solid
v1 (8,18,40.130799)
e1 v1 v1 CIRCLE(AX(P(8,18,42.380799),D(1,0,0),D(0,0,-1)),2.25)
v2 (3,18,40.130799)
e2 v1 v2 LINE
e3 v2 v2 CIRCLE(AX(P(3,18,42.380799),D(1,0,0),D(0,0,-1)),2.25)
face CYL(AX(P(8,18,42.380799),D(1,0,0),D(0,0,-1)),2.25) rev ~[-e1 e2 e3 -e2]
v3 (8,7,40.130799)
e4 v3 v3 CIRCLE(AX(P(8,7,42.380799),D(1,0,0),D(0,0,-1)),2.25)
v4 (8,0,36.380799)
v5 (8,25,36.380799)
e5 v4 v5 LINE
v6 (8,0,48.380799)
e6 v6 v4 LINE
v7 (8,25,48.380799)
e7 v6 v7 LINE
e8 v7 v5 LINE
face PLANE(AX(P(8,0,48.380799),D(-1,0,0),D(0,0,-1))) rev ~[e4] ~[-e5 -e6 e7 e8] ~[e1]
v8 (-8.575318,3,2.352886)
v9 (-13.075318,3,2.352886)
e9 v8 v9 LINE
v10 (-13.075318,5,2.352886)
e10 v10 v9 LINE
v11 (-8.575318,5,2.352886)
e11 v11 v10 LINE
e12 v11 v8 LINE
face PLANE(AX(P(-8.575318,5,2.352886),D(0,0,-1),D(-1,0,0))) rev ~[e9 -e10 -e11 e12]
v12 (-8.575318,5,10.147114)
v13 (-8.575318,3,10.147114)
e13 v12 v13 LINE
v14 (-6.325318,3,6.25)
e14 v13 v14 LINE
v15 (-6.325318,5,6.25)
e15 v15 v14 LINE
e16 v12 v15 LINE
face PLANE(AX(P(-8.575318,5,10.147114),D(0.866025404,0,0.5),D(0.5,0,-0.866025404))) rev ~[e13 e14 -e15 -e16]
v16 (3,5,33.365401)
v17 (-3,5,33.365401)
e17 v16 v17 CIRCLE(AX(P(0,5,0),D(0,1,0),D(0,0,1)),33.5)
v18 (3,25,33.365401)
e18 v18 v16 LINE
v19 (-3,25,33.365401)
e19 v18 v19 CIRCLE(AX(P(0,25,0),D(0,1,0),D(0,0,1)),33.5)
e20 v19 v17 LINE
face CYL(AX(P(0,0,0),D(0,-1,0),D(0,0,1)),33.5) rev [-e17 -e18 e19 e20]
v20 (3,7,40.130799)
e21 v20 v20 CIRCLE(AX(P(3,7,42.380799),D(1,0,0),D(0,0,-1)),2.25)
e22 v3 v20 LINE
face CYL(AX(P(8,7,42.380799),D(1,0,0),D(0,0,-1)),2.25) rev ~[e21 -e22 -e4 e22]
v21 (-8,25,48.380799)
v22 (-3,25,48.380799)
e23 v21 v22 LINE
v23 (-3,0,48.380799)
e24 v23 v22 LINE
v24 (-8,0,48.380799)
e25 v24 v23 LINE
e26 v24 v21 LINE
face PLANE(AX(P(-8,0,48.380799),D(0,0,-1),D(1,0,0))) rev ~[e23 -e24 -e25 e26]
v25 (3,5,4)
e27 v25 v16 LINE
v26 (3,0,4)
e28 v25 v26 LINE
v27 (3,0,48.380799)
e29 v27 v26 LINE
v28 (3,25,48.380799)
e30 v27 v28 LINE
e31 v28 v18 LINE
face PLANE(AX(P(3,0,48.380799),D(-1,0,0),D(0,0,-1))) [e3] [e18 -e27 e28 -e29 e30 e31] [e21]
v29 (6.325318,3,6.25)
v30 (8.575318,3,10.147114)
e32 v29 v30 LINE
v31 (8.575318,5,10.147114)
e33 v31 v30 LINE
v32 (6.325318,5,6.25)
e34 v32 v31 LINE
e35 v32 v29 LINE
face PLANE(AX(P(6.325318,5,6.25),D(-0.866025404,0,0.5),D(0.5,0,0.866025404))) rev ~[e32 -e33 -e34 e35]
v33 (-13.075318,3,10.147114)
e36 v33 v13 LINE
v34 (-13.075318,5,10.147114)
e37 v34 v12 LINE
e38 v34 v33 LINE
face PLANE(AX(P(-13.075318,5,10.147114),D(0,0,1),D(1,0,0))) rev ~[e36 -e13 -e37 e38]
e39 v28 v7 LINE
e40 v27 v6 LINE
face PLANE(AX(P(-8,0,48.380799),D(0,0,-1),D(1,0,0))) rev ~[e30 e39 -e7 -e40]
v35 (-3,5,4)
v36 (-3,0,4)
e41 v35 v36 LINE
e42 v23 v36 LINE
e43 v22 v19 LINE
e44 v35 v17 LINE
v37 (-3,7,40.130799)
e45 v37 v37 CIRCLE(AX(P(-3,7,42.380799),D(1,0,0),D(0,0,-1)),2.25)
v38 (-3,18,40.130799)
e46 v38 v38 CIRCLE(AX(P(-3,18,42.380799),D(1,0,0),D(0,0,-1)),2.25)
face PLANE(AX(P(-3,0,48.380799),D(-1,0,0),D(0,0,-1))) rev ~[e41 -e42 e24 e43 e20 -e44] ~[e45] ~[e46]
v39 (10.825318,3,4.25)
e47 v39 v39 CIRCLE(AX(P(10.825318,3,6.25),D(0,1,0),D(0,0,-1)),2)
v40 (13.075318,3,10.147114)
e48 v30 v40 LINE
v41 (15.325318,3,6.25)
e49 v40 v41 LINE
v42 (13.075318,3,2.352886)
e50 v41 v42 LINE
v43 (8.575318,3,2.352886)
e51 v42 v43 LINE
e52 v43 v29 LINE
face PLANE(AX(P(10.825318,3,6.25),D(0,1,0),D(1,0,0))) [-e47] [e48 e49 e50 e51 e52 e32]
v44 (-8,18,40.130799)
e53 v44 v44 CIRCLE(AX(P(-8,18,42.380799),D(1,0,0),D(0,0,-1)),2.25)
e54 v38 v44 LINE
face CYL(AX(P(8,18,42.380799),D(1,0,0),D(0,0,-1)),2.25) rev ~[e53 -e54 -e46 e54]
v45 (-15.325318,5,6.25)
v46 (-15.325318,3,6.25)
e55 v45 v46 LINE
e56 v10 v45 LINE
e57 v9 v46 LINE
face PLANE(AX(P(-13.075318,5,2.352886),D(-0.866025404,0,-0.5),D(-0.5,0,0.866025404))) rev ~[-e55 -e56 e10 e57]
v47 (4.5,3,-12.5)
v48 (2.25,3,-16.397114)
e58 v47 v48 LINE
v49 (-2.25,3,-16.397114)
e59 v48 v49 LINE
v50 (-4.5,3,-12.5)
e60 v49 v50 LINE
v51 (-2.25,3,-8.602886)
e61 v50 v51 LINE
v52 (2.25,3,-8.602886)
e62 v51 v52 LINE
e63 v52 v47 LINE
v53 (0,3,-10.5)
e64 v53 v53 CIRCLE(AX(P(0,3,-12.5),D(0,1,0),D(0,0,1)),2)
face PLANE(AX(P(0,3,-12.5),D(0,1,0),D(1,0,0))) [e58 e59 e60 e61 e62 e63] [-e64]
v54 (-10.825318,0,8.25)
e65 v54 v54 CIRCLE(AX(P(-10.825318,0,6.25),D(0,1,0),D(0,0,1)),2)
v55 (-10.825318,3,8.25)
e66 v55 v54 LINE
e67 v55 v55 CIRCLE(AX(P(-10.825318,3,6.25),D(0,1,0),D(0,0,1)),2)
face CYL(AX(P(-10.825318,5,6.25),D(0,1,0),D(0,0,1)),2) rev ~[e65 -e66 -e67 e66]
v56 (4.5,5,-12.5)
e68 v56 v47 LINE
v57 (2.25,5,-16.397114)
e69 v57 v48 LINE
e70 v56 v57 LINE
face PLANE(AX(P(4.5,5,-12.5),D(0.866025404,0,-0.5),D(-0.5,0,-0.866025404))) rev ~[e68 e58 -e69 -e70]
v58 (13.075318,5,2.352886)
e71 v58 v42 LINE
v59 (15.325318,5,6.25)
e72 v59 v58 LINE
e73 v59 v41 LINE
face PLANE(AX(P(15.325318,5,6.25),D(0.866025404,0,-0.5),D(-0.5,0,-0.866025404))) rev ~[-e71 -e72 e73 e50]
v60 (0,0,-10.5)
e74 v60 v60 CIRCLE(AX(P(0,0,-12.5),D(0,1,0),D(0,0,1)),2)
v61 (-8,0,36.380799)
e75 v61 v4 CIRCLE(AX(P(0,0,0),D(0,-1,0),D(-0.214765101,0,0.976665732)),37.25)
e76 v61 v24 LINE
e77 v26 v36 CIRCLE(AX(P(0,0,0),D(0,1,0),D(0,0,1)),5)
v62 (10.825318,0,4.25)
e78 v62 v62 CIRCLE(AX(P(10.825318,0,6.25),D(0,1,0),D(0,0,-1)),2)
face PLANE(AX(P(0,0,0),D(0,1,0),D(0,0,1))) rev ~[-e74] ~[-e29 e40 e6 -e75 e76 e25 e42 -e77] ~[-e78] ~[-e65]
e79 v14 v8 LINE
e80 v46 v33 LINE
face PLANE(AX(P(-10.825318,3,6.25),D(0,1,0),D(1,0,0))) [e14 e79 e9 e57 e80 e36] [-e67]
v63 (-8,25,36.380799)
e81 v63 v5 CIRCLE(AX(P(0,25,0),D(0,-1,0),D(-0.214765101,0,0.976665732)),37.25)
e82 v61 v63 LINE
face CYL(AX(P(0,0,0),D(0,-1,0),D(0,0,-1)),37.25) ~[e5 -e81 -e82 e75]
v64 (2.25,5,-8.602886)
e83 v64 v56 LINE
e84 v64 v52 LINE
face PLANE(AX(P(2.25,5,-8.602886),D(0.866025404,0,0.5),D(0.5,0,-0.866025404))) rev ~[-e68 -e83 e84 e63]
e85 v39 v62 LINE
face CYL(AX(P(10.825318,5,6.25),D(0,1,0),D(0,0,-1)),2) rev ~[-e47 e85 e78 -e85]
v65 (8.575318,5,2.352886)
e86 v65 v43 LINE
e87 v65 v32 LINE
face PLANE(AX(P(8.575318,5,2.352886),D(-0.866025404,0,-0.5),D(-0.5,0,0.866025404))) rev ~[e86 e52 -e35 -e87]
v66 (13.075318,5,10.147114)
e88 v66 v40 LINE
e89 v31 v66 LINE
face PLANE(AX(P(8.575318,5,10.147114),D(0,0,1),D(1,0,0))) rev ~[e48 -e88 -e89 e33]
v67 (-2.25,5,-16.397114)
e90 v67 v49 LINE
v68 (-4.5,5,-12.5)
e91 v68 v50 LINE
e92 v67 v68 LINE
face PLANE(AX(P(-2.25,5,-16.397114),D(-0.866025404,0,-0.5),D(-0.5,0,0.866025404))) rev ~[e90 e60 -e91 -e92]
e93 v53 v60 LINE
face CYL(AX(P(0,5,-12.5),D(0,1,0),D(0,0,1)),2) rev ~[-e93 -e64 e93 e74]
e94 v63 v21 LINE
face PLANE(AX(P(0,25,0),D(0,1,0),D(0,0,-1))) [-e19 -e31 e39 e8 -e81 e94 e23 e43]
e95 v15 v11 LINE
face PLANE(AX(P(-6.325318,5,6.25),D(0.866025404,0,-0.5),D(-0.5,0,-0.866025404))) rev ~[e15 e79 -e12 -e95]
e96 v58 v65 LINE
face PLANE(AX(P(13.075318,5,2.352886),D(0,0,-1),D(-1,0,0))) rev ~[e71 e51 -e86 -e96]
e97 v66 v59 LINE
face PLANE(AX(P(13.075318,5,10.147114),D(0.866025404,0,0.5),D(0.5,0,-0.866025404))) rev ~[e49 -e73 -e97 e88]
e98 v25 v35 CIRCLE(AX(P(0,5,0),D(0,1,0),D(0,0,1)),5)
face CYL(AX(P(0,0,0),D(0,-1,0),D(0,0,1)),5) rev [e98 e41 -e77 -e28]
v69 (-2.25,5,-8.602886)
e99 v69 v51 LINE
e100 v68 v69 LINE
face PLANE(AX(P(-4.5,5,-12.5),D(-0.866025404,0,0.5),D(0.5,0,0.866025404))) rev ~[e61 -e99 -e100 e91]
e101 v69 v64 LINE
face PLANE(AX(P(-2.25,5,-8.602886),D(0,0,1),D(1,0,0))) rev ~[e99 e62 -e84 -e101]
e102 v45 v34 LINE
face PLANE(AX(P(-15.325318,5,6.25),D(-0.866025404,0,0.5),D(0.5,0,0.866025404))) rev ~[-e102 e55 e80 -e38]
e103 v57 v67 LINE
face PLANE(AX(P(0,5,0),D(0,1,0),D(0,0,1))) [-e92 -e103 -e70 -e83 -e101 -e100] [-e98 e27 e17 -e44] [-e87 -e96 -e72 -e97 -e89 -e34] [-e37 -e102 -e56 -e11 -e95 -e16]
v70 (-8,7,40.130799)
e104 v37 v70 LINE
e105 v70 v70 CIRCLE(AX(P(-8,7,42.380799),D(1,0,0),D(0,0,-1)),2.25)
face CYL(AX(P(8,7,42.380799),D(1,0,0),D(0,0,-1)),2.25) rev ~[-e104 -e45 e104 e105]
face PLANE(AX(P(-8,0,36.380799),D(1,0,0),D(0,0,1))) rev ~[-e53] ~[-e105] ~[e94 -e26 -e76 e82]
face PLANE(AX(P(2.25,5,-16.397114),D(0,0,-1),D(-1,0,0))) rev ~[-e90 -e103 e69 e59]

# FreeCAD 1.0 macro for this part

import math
import FreeCAD as App
import Part
import Sketcher
from FreeCAD import Vector
Q = App.Units.Quantity

doc = App.newDocument("Part")
body = doc.addObject("PartDesign::Body", "Body")

sketch1 = body.newObject("Sketcher::SketchObject", "Sketch")
sketch1.AttachmentSupport = (doc.getObject("XZ_Plane"), [""])
sketch1.MapMode = "FlatFace"
sketch1.addGeometry(Part.Circle(Vector(0, 0, 0), Vector(0, 0, 1), 37.25), False)
sketch1.addGeometry(Part.Circle(Vector(0, 0, 0), Vector(0, 0, 1), 33.5), False)
sketch1.addConstraint(Sketcher.Constraint("Coincident", 0, 3, -1, 1))
sketch1.addConstraint(Sketcher.Constraint("Coincident", 1, 3, -1, 1))
sketch1.addConstraint(Sketcher.Constraint("Diameter", 1, Q("67 mm")))
sketch1.addConstraint(Sketcher.Constraint("Diameter", 0, Q("74.5 mm")))
pad1 = body.newObject("PartDesign::Pad", "Pad")
pad1.Profile = sketch1
pad1.Length = 25
pad1.Reversed = True

sketch2 = body.newObject("Sketcher::SketchObject", "Sketch001")
sketch2.AttachmentSupport = (doc.getObject("XZ_Plane"), [""])
sketch2.MapMode = "FlatFace"
sketch2.addGeometry(Part.Circle(Vector(0, 0, 0), Vector(0, 0, 1), 33.5), False)
sketch2.addGeometry(Part.Circle(Vector(0, 0, 0), Vector(0, 0, 1), 5), False)
sketch2.addConstraint(Sketcher.Constraint("Coincident", 0, 3, -1, 1))
sketch2.addConstraint(Sketcher.Constraint("Coincident", 1, 3, -1, 1))
sketch2.addConstraint(Sketcher.Constraint("Diameter", 0, Q("67 mm")))
sketch2.addConstraint(Sketcher.Constraint("Diameter", 1, Q("10 mm")))
pad2 = body.newObject("PartDesign::Pad", "Pad001")
pad2.Profile = sketch2
pad2.Length = 5
pad2.Reversed = True

sketch3 = body.newObject("Sketcher::SketchObject", "Sketch002")
sketch3.AttachmentSupport = (doc.getObject("XZ_Plane"), [""])
sketch3.MapMode = "FlatFace"
sketch3.addGeometry(Part.LineSegment(Vector(-8, 36.380799, 0), Vector(-8, 48.380799, 0)), False)
sketch3.addGeometry(Part.LineSegment(Vector(-8, 48.380799, 0), Vector(8, 48.380799, 0)), False)
sketch3.addGeometry(Part.LineSegment(Vector(8, 48.380799, 0), Vector(8, 36.380799, 0)), False)
sketch3.addGeometry(Part.ArcOfCircle(Part.Circle(Vector(0, 0, 0), Vector(0, 0, 1), 37.25), math.radians(77.598253), math.radians(102.401747)), False)
sketch3.addConstraint(Sketcher.Constraint("Coincident", 0, 2, 1, 1))
sketch3.addConstraint(Sketcher.Constraint("Coincident", 1, 2, 2, 1))
sketch3.addConstraint(Sketcher.Constraint("Coincident", 2, 2, 3, 1))
sketch3.addConstraint(Sketcher.Constraint("Coincident", 3, 2, 0, 1))
sketch3.addConstraint(Sketcher.Constraint("Vertical", 0))
sketch3.addConstraint(Sketcher.Constraint("Horizontal", 1))
sketch3.addConstraint(Sketcher.Constraint("Vertical", 2))
sketch3.addConstraint(Sketcher.Constraint("Coincident", 3, 3, -1, 1))
sketch3.addConstraint(Sketcher.Constraint("Horizontal", 2, 2, 3, 2))
sketch3.addConstraint(Sketcher.Constraint("DistanceX", 1, 1, 1, 2, Q("16 mm")))
sketch3.addConstraint(Sketcher.Constraint("DistanceY", 0, 1, 0, 2, Q("12 mm")))
sketch3.addConstraint(Sketcher.Constraint("Radius", 3, Q("37.25 mm")))
pad3 = body.newObject("PartDesign::Pad", "Pad002")
pad3.Profile = sketch3
pad3.Length = 25
pad3.Reversed = True

sketch4 = body.newObject("Sketcher::SketchObject", "Sketch003")
sketch4.AttachmentSupport = (doc.getObject("XZ_Plane"), [""])
sketch4.MapMode = "FlatFace"
sketch4.addGeometry(Part.LineSegment(Vector(-3, 0, 0), Vector(-3, 48.380799, 0)), False)
sketch4.addGeometry(Part.LineSegment(Vector(-3, 48.380799, 0), Vector(3, 48.380799, 0)), False)
sketch4.addGeometry(Part.LineSegment(Vector(3, 48.380799, 0), Vector(3, 0, 0)), False)
sketch4.addGeometry(Part.LineSegment(Vector(3, 0, 0), Vector(-3, 0, 0)), False)
sketch4.addConstraint(Sketcher.Constraint("Coincident", 0, 2, 1, 1))
sketch4.addConstraint(Sketcher.Constraint("Coincident", 1, 2, 2, 1))
sketch4.addConstraint(Sketcher.Constraint("Coincident", 2, 2, 3, 1))
sketch4.addConstraint(Sketcher.Constraint("Coincident", 3, 2, 0, 1))
sketch4.addConstraint(Sketcher.Constraint("Vertical", 0))
sketch4.addConstraint(Sketcher.Constraint("Horizontal", 1))
sketch4.addConstraint(Sketcher.Constraint("Vertical", 2))
sketch4.addConstraint(Sketcher.Constraint("Horizontal", 3))
sketch4.addConstraint(Sketcher.Constraint("Symmetric", 2, 2, 3, 2, -1, 1))
sketch4.addConstraint(Sketcher.Constraint("DistanceX", 1, 1, 1, 2, Q("6 mm")))
sketch4.addConstraint(Sketcher.Constraint("DistanceY", 0, 1, 0, 2, Q("48.380799 mm")))
pocket1 = body.newObject("PartDesign::Pocket", "Pocket")
pocket1.Profile = sketch4
pocket1.Length = 25

sketch5 = body.newObject("Sketcher::SketchObject", "Sketch004")
sketch5.AttachmentSupport = (doc.getObject("YZ_Plane"), [""])
sketch5.MapMode = "FlatFace"
sketch5.AttachmentOffset = App.Placement(Vector(0, 0, 8), App.Rotation())
sketch5.addGeometry(Part.Circle(Vector(7, 42.380799, 0), Vector(0, 0, 1), 2.25), False)
sketch5.addGeometry(Part.Circle(Vector(18, 42.380799, 0), Vector(0, 0, 1), 2.25), False)
sketch5.addConstraint(Sketcher.Constraint("Equal", 0, 1))
sketch5.addConstraint(Sketcher.Constraint("Horizontal", 0, 3, 1, 3))
sketch5.addConstraint(Sketcher.Constraint("Diameter", 0, Q("4.5 mm")))
sketch5.addConstraint(Sketcher.Constraint("DistanceX", -1, 1, 0, 3, Q("7 mm")))
sketch5.addConstraint(Sketcher.Constraint("DistanceX", -1, 1, 1, 3, Q("18 mm")))
sketch5.addConstraint(Sketcher.Constraint("DistanceY", -1, 1, 0, 3, Q("42.380799 mm")))
pocket2 = body.newObject("PartDesign::Pocket", "Pocket001")
pocket2.Profile = sketch5
pocket2.Type = "ThroughAll"

sketch6 = body.newObject("Sketcher::SketchObject", "Sketch005")
sketch6.AttachmentSupport = (doc.getObject("XZ_Plane"), [""])
sketch6.MapMode = "FlatFace"
sketch6.AttachmentOffset = App.Placement(Vector(0, 0, -5), App.Rotation())
sketch6.addGeometry(Part.Circle(Vector(0, -12.5, 0), Vector(0, 0, 1), 2), False)
sketch6.addConstraint(Sketcher.Constraint("PointOnObject", 0, 3, -2))
sketch6.addConstraint(Sketcher.Constraint("Diameter", 0, Q("4 mm")))
sketch6.addConstraint(Sketcher.Constraint("DistanceY", 0, 3, -1, 1, Q("12.5 mm")))
pocket3 = body.newObject("PartDesign::Pocket", "Pocket002")
pocket3.Profile = sketch6
pocket3.Type = "UpToFirst"
pocket3.Reversed = True

sketch7 = body.newObject("Sketcher::SketchObject", "Sketch006")
sketch7.AttachmentSupport = (doc.getObject("XZ_Plane"), [""])
sketch7.MapMode = "FlatFace"
sketch7.AttachmentOffset = App.Placement(Vector(0, 0, -5), App.Rotation())
sketch7.addGeometry(Part.Circle(Vector(-10.825318, 6.25, 0), Vector(0, 0, 1), 2), False)
sketch7.addConstraint(Sketcher.Constraint("Diameter", 0, Q("4 mm")))
sketch7.addConstraint(Sketcher.Constraint("DistanceY", -1, 1, 0, 3, Q("6.25 mm")))
sketch7.addConstraint(Sketcher.Constraint("DistanceX", 0, 3, -1, 1, Q("10.825318 mm")))
pocket4 = body.newObject("PartDesign::Pocket", "Pocket003")
pocket4.Profile = sketch7
pocket4.Type = "UpToFirst"
pocket4.Reversed = True

sketch8 = body.newObject("Sketcher::SketchObject", "Sketch007")
sketch8.AttachmentSupport = (doc.getObject("XZ_Plane"), [""])
sketch8.MapMode = "FlatFace"
sketch8.AttachmentOffset = App.Placement(Vector(0, 0, -5), App.Rotation())
sketch8.addGeometry(Part.Circle(Vector(10.825318, 6.25, 0), Vector(0, 0, 1), 2), False)
sketch8.addConstraint(Sketcher.Constraint("Diameter", 0, Q("4 mm")))
sketch8.addConstraint(Sketcher.Constraint("DistanceY", -1, 1, 0, 3, Q("6.25 mm")))
sketch8.addConstraint(Sketcher.Constraint("DistanceX", -1, 1, 0, 3, Q("10.825318 mm")))
pocket5 = body.newObject("PartDesign::Pocket", "Pocket004")
pocket5.Profile = sketch8
pocket5.Type = "UpToFirst"
pocket5.Reversed = True

sketch9 = body.newObject("Sketcher::SketchObject", "Sketch008")
sketch9.AttachmentSupport = (doc.getObject("XZ_Plane"), [""])
sketch9.MapMode = "FlatFace"
sketch9.AttachmentOffset = App.Placement(Vector(0, 0, -5), App.Rotation())
sketch9.addGeometry(Part.LineSegment(Vector(-8.575318, 10.147114, 0), Vector(-6.325318, 6.25, 0)), False)
sketch9.addGeometry(Part.LineSegment(Vector(-6.325318, 6.25, 0), Vector(-8.575318, 2.352886, 0)), False)
sketch9.addGeometry(Part.LineSegment(Vector(-8.575318, 2.352886, 0), Vector(-13.075318, 2.352886, 0)), False)
sketch9.addGeometry(Part.LineSegment(Vector(-13.075318, 2.352886, 0), Vector(-15.325318, 6.25, 0)), False)
sketch9.addGeometry(Part.LineSegment(Vector(-15.325318, 6.25, 0), Vector(-13.075318, 10.147114, 0)), False)
sketch9.addGeometry(Part.LineSegment(Vector(-13.075318, 10.147114, 0), Vector(-8.575318, 10.147114, 0)), False)
sketch9.addGeometry(Part.LineSegment(Vector(13.075318, 10.147114, 0), Vector(15.325318, 6.25, 0)), False)
sketch9.addGeometry(Part.LineSegment(Vector(15.325318, 6.25, 0), Vector(13.075318, 2.352886, 0)), False)
sketch9.addGeometry(Part.LineSegment(Vector(13.075318, 2.352886, 0), Vector(8.575318, 2.352886, 0)), False)
sketch9.addGeometry(Part.LineSegment(Vector(8.575318, 2.352886, 0), Vector(6.325318, 6.25, 0)), False)
sketch9.addGeometry(Part.LineSegment(Vector(6.325318, 6.25, 0), Vector(8.575318, 10.147114, 0)), False)
sketch9.addGeometry(Part.LineSegment(Vector(8.575318, 10.147114, 0), Vector(13.075318, 10.147114, 0)), False)
sketch9.addGeometry(Part.LineSegment(Vector(2.25, -8.602886, 0), Vector(4.5, -12.5, 0)), False)
sketch9.addGeometry(Part.LineSegment(Vector(4.5, -12.5, 0), Vector(2.25, -16.397114, 0)), False)
sketch9.addGeometry(Part.LineSegment(Vector(2.25, -16.397114, 0), Vector(-2.25, -16.397114, 0)), False)
sketch9.addGeometry(Part.LineSegment(Vector(-2.25, -16.397114, 0), Vector(-4.5, -12.5, 0)), False)
sketch9.addGeometry(Part.LineSegment(Vector(-4.5, -12.5, 0), Vector(-2.25, -8.602886, 0)), False)
sketch9.addGeometry(Part.LineSegment(Vector(-2.25, -8.602886, 0), Vector(2.25, -8.602886, 0)), False)
sketch9.addConstraint(Sketcher.Constraint("Coincident", 0, 2, 1, 1))
sketch9.addConstraint(Sketcher.Constraint("Coincident", 1, 2, 2, 1))
sketch9.addConstraint(Sketcher.Constraint("Coincident", 2, 2, 3, 1))
sketch9.addConstraint(Sketcher.Constraint("Coincident", 3, 2, 4, 1))
sketch9.addConstraint(Sketcher.Constraint("Coincident", 4, 2, 5, 1))
sketch9.addConstraint(Sketcher.Constraint("Coincident", 5, 2, 0, 1))
sketch9.addConstraint(Sketcher.Constraint("Coincident", 6, 2, 7, 1))
sketch9.addConstraint(Sketcher.Constraint("Coincident", 7, 2, 8, 1))
sketch9.addConstraint(Sketcher.Constraint("Coincident", 8, 2, 9, 1))
sketch9.addConstraint(Sketcher.Constraint("Coincident", 9, 2, 10, 1))
sketch9.addConstraint(Sketcher.Constraint("Coincident", 10, 2, 11, 1))
sketch9.addConstraint(Sketcher.Constraint("Coincident", 11, 2, 6, 1))
sketch9.addConstraint(Sketcher.Constraint("Coincident", 12, 2, 13, 1))
sketch9.addConstraint(Sketcher.Constraint("Coincident", 13, 2, 14, 1))
sketch9.addConstraint(Sketcher.Constraint("Coincident", 14, 2, 15, 1))
sketch9.addConstraint(Sketcher.Constraint("Coincident", 15, 2, 16, 1))
sketch9.addConstraint(Sketcher.Constraint("Coincident", 16, 2, 17, 1))
sketch9.addConstraint(Sketcher.Constraint("Coincident", 17, 2, 12, 1))
sketch9.addConstraint(Sketcher.Constraint("Horizontal", 2))
sketch9.addConstraint(Sketcher.Constraint("Horizontal", 5))
sketch9.addConstraint(Sketcher.Constraint("Horizontal", 8))
sketch9.addConstraint(Sketcher.Constraint("Horizontal", 11))
sketch9.addConstraint(Sketcher.Constraint("Horizontal", 14))
sketch9.addConstraint(Sketcher.Constraint("Horizontal", 17))
sketch9.addConstraint(Sketcher.Constraint("Symmetric", 3, 2, 6, 2, -2))
sketch9.addConstraint(Sketcher.Constraint("Symmetric", 2, 2, 7, 2, -2))
sketch9.addConstraint(Sketcher.Constraint("Symmetric", 0, 2, 9, 2, -2))
sketch9.addConstraint(Sketcher.Constraint("Symmetric", 5, 2, 10, 2, -2))
sketch9.addConstraint(Sketcher.Constraint("Symmetric", 12, 2, 15, 2, -2))
sketch9.addConstraint(Sketcher.Constraint("Parallel", 0, 3))
sketch9.addConstraint(Sketcher.Constraint("Parallel", 1, 4))
sketch9.addConstraint(Sketcher.Constraint("Parallel", 3, 6))
sketch9.addConstraint(Sketcher.Constraint("Parallel", 4, 7))
sketch9.addConstraint(Sketcher.Constraint("Parallel", 6, 9))
sketch9.addConstraint(Sketcher.Constraint("Parallel", 9, 12))
sketch9.addConstraint(Sketcher.Constraint("Parallel", 10, 13))
sketch9.addConstraint(Sketcher.Constraint("Parallel", 12, 15))
sketch9.addConstraint(Sketcher.Constraint("Parallel", 13, 16))
sketch9.addConstraint(Sketcher.Constraint("Horizontal", 0, 2, 3, 2))
sketch9.addConstraint(Sketcher.Constraint("Vertical", 2, 2, 4, 2))
sketch9.addConstraint(Sketcher.Constraint("Vertical", 14, 2, 16, 2))
sketch9.addConstraint(Sketcher.Constraint("Equal", 11, 14))
sketch9.addConstraint(Sketcher.Constraint("Equal", 10, 12))
sketch9.addConstraint(Sketcher.Constraint("Angle", 0, Q("-60 deg")))
sketch9.addConstraint(Sketcher.Constraint("DistanceX", 2, 2, 2, 1, Q("4.5 mm")))
sketch9.addConstraint(Sketcher.Constraint("DistanceX", 3, 2, 0, 2, Q("9 mm")))
sketch9.addConstraint(Sketcher.Constraint("DistanceY", 12, 2, -1, 1, Q("12.5 mm")))
sketch9.addConstraint(Sketcher.Constraint("DistanceY", -1, 1, 0, 2, Q("6.25 mm")))
sketch9.addConstraint(Sketcher.Constraint("DistanceX", 0, 2, -1, 1, Q("6.325318 mm")))
pocket6 = body.newObject("PartDesign::Pocket", "Pocket005")
pocket6.Profile = sketch9
pocket6.Length = 2
pocket6.Reversed = True

doc.recompute()
